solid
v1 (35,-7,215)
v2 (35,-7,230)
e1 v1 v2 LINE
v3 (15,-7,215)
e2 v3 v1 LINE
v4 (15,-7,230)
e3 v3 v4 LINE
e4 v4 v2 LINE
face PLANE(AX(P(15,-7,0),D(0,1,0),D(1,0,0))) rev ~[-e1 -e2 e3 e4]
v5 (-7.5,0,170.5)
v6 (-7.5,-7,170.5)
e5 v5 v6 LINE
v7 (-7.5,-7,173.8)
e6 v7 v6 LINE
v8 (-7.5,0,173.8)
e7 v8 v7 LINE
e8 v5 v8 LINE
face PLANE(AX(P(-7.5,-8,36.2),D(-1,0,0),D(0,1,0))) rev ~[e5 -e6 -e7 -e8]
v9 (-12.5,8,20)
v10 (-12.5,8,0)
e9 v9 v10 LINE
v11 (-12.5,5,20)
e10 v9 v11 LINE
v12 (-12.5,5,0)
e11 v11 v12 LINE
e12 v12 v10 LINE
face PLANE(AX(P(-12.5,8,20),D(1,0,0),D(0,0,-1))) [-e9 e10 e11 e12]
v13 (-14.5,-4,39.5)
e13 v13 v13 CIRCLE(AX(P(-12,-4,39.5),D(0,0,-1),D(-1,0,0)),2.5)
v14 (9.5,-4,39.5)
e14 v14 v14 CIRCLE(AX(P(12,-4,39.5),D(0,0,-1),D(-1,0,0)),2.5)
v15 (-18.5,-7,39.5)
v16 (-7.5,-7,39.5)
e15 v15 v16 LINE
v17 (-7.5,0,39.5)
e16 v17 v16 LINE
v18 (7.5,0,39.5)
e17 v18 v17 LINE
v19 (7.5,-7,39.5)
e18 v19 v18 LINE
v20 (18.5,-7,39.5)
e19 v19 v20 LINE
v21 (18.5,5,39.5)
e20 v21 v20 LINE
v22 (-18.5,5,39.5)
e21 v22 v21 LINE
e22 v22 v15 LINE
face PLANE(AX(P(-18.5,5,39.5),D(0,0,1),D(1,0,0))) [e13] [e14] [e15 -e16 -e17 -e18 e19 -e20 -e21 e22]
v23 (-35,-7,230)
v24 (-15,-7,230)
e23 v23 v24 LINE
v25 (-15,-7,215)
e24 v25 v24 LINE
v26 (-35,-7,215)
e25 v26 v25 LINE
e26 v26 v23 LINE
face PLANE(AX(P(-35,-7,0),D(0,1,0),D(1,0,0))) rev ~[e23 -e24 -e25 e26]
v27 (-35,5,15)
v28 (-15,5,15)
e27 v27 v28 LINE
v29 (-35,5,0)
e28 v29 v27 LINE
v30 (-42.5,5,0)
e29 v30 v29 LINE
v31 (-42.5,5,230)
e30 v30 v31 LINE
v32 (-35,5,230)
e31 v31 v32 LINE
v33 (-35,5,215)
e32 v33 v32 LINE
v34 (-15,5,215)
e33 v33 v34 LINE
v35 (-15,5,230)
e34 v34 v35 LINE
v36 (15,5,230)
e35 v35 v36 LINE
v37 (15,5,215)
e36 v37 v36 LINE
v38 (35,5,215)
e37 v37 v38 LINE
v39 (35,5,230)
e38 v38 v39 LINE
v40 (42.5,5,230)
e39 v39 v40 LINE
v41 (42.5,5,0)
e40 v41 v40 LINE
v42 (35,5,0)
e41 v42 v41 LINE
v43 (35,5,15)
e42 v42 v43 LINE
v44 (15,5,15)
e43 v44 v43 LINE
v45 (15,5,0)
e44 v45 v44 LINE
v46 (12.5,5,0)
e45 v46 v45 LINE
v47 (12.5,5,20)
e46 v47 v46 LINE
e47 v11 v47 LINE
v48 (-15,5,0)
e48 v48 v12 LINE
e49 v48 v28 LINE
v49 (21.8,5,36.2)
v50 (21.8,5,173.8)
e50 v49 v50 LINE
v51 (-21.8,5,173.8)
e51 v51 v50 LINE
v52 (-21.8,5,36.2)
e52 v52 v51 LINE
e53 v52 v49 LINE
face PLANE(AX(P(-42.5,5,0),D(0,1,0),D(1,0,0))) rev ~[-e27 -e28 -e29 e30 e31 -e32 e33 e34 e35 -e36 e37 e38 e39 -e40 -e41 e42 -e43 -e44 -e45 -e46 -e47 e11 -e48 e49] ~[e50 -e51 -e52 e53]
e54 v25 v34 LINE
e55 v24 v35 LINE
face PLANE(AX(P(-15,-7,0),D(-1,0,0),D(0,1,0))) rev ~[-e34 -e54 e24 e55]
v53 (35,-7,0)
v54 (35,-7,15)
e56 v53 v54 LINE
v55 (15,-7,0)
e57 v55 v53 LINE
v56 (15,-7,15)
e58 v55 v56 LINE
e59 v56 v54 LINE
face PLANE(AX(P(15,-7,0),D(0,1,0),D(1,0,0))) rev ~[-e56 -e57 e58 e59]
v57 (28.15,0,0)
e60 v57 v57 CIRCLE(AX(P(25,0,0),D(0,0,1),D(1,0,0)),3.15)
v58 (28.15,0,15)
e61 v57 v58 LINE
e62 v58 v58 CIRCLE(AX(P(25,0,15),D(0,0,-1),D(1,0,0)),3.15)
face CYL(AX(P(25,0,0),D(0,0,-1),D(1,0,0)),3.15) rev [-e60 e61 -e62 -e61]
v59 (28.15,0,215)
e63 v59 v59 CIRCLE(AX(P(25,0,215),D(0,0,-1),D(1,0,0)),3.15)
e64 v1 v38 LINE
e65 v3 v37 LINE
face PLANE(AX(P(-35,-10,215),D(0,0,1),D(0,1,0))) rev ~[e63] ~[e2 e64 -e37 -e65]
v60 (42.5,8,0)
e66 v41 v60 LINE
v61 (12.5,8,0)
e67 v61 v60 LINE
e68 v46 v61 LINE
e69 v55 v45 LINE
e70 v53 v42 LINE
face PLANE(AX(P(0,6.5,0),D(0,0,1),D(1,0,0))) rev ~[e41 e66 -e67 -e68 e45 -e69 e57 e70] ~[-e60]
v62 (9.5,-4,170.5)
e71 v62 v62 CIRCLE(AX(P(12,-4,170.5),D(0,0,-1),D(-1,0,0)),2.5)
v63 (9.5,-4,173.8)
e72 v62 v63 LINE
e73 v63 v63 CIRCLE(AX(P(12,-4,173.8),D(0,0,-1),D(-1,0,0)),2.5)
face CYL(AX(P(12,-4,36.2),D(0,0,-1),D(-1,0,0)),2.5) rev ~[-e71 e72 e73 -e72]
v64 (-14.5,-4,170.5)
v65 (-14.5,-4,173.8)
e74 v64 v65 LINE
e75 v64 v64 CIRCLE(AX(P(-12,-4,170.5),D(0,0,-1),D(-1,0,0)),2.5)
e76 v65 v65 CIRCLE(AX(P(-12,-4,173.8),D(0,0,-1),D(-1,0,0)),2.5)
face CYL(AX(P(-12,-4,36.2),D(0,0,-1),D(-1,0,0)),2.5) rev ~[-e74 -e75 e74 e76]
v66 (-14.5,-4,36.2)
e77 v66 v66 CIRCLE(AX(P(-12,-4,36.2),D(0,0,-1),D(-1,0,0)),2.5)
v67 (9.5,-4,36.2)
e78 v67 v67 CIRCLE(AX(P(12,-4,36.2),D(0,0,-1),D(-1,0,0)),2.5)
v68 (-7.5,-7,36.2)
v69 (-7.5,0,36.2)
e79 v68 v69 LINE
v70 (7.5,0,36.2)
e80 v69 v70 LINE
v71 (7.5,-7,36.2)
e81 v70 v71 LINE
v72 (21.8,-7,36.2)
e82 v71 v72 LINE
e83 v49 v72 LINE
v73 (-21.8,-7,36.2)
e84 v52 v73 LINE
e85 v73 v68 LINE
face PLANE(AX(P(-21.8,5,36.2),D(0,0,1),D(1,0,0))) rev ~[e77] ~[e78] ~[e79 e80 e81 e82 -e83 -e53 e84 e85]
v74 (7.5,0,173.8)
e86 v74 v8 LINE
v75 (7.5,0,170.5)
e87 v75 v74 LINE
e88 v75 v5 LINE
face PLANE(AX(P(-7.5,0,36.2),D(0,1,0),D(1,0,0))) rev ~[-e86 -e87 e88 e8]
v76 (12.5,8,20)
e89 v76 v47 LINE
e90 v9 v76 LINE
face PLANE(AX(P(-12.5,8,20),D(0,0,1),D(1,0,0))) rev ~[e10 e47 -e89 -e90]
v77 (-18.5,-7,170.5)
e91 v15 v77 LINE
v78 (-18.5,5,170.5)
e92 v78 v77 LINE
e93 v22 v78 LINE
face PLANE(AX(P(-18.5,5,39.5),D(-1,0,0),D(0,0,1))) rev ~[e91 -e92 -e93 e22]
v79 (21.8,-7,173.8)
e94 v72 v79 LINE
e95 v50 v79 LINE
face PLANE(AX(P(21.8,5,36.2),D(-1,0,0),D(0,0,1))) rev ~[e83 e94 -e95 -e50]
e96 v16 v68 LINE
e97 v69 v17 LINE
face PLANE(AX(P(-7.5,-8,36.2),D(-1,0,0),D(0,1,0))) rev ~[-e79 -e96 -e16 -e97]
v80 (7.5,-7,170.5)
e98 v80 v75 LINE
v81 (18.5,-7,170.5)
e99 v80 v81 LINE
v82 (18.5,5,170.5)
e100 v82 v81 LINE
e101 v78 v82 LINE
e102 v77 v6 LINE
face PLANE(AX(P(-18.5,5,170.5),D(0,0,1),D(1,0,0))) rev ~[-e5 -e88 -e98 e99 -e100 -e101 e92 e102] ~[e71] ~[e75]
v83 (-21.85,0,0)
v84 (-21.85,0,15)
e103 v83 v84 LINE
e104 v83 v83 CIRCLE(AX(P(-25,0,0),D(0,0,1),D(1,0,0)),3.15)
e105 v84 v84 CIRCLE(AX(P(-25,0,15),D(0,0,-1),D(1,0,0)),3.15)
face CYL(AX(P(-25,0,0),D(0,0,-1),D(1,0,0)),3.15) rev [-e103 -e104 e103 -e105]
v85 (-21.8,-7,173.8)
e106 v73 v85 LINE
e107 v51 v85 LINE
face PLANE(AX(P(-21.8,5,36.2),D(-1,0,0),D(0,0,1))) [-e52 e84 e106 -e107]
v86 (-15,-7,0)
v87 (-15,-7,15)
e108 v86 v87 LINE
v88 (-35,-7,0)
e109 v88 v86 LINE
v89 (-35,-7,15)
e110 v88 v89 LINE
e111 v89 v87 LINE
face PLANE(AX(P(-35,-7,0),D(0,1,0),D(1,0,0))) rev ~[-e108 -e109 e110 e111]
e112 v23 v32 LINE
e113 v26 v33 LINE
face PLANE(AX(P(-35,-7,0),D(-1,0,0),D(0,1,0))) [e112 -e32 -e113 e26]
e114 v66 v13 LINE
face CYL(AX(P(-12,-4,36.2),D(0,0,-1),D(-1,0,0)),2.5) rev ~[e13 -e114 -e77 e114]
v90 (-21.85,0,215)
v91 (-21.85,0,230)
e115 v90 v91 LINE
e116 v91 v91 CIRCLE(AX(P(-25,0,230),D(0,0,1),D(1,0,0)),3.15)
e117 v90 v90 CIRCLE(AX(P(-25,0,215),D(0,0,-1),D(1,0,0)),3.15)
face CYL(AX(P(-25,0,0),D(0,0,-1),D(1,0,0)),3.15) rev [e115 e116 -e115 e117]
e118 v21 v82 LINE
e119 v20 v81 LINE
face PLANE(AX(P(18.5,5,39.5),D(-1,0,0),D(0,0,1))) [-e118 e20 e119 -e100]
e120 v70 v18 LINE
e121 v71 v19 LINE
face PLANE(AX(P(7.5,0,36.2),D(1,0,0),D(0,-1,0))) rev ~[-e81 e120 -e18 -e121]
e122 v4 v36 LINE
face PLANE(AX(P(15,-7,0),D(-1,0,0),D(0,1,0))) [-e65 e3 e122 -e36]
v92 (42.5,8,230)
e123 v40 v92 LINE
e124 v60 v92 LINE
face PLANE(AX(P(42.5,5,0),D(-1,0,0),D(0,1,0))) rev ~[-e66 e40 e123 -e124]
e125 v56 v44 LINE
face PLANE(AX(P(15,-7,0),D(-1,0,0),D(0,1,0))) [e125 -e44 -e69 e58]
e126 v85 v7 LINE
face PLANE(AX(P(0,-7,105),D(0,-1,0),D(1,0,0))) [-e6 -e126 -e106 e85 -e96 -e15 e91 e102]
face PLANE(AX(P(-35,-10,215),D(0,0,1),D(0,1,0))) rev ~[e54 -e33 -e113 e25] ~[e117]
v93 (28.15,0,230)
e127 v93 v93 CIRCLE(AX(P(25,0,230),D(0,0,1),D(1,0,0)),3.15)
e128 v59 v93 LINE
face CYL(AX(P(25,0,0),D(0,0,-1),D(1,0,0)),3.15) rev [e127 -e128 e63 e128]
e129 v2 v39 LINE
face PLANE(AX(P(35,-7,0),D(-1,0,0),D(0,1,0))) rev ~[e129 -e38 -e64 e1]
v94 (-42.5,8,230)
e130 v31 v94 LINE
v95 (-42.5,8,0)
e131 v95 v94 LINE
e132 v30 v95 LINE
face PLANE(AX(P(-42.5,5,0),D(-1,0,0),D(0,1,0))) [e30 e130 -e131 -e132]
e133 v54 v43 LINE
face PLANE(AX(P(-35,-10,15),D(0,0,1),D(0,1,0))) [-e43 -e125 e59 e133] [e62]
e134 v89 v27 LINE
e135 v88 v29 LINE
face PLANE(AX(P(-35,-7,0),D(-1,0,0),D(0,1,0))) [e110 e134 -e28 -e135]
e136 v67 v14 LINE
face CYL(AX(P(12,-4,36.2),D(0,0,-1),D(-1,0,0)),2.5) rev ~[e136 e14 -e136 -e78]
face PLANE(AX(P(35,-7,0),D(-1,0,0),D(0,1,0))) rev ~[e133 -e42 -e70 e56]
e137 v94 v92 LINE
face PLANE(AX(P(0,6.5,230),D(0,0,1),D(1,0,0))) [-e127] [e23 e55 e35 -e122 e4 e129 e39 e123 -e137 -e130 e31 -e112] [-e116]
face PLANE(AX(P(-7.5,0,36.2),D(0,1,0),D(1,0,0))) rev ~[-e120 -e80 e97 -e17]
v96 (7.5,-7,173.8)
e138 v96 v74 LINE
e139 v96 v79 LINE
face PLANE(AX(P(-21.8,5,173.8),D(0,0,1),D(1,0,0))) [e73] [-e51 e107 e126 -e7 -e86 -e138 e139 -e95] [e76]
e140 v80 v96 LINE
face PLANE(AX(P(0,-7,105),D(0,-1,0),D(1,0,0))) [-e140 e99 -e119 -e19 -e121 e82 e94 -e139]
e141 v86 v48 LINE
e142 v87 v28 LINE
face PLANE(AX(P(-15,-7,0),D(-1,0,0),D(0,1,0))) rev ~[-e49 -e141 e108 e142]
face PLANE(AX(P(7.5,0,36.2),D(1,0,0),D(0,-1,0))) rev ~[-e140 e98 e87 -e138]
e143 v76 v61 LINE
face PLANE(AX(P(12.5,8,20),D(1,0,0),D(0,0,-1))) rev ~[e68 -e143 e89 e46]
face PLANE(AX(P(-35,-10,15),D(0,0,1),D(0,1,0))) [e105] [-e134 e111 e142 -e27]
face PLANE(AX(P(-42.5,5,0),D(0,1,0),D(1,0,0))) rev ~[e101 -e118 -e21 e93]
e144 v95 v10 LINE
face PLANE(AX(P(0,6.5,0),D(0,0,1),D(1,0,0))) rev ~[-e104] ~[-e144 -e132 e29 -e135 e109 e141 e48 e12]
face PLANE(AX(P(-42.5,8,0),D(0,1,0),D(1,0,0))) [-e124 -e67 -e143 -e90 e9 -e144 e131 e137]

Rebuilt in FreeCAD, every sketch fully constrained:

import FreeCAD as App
import Part
import Sketcher
from FreeCAD import Vector
Q = App.Units.Quantity


def add_polygon(sketch, points):
    """Adds a closed chain of lines whose ends are joined by coincident constraints."""
    first, n = sketch.GeometryCount, len(points)
    for a, b in zip(points, points[1:] + points[:1]):
        sketch.addGeometry(Part.LineSegment(App.Vector(*a, 0), App.Vector(*b, 0)), False)
    for i in range(n):
        sketch.addConstraint(Sketcher.Constraint("Coincident", first + i, 2, first + (i + 1) % n, 1))

doc = App.newDocument("Part")
body = doc.addObject("PartDesign::Body", "Body")

# Sketch on XY plane
sketch1 = body.newObject("Sketcher::SketchObject", "Sketch")
sketch1.AttachmentSupport = (doc.getObject("XY_Plane"), [""])
sketch1.MapMode = "FlatFace"
add_polygon(sketch1, [(-35, 5), (-35, -7), (-15, -7), (-15, 5), (15, 5), (15, -7), (35, -7), (35, 5), (42.5, 5), (42.5, 8), (-42.5, 8), (-42.5, 5)])  # lines 0-11
sketch1.addGeometry(Part.Circle(Vector(-25, 0, 0), Vector(0, 0, 1), 3.15), False)  # 12
sketch1.addGeometry(Part.Circle(Vector(25, 0, 0), Vector(0, 0, 1), 3.15), False)  # 13
sketch1.addConstraint([
    Sketcher.Constraint("Vertical", 0),
    Sketcher.Constraint("Horizontal", 1),
    Sketcher.Constraint("Vertical", 2),
    Sketcher.Constraint("Horizontal", 3),
    Sketcher.Constraint("Vertical", 4),
    Sketcher.Constraint("Horizontal", 5),
    Sketcher.Constraint("Vertical", 6),
    Sketcher.Constraint("Horizontal", 7),
    Sketcher.Constraint("Vertical", 8),
    Sketcher.Constraint("Horizontal", 9),
    Sketcher.Constraint("Vertical", 10),
    Sketcher.Constraint("Horizontal", 11),
    Sketcher.Constraint("Equal", 12, 13),
    Sketcher.Constraint("Symmetric", 12, 3, 13, 3, -1, 1),
    Sketcher.Constraint("Symmetric", 1, 2, 4, 2, -2),
    Sketcher.Constraint("Symmetric", 7, 2, 10, 2, -2),
    Sketcher.Constraint("PointOnObject", 12, 3, -1),
    Sketcher.Constraint("Horizontal", 3, 2, 6, 2),
    Sketcher.Constraint("Equal", 1, 5),
    Sketcher.Constraint("Diameter", 12, Q("6.3 mm")),
    Sketcher.Constraint("DistanceX", 1, 1, 1, 2, Q("20 mm")),
    Sketcher.Constraint("DistanceX", 3, 1, 3, 2, Q("30 mm")),
    Sketcher.Constraint("DistanceX", 9, 2, 9, 1, Q("85 mm")),
    Sketcher.Constraint("DistanceY", 0, 2, 0, 1, Q("12 mm")),
    Sketcher.Constraint("DistanceY", 8, 1, 8, 2, Q("3 mm")),
    Sketcher.Constraint("DistanceX", 12, 3, -1, 1, Q("25 mm")),
    Sketcher.Constraint("DistanceY", 0, 2, -1, 1, Q("7 mm")),
])
pad1 = body.newObject("PartDesign::Pad", "Pad")
pad1.Profile = sketch1
pad1.Length = 230

# Sketch on YZ plane
sketch2 = body.newObject("Sketcher::SketchObject", "Sketch001")
sketch2.AttachmentSupport = (doc.getObject("YZ_Plane"), [""])
sketch2.MapMode = "FlatFace"
sketch2.AttachmentOffset = App.Placement(Vector(0, 0, -35), App.Rotation())
add_polygon(sketch2, [(5, 15), (-10, 15), (-10, 215), (5, 215)])  # lines 0-3
sketch2.addConstraint([
    Sketcher.Constraint("Horizontal", 0),
    Sketcher.Constraint("Vertical", 1),
    Sketcher.Constraint("Horizontal", 2),
    Sketcher.Constraint("Vertical", 3),
    Sketcher.Constraint("DistanceX", 0, 2, 0, 1, Q("15 mm")),
    Sketcher.Constraint("DistanceY", 1, 1, 1, 2, Q("200 mm")),
    Sketcher.Constraint("DistanceX", 0, 2, -1, 1, Q("10 mm")),
    Sketcher.Constraint("DistanceY", -1, 1, 0, 2, Q("15 mm")),
])
pocket1 = body.newObject("PartDesign::Pocket", "Pocket")
pocket1.Profile = sketch2
pocket1.Length = 210
pocket1.Reversed = True

# Sketch on XZ plane
sketch3 = body.newObject("Sketcher::SketchObject", "Sketch002")
sketch3.AttachmentSupport = (doc.getObject("XZ_Plane"), [""])
sketch3.MapMode = "FlatFace"
sketch3.AttachmentOffset = App.Placement(Vector(0, 0, -5), App.Rotation())
add_polygon(sketch3, [(-21.8, 173.8), (-21.8, 36.2), (21.8, 36.2), (21.8, 173.8)])  # lines 0-3
add_polygon(sketch3, [(18.5, 39.5), (-18.5, 39.5), (-18.5, 170.5), (18.5, 170.5)])  # lines 4-7
sketch3.addConstraint([
    Sketcher.Constraint("Vertical", 0),
    Sketcher.Constraint("Horizontal", 1),
    Sketcher.Constraint("Vertical", 2),
    Sketcher.Constraint("Horizontal", 3),
    Sketcher.Constraint("Horizontal", 4),
    Sketcher.Constraint("Vertical", 5),
    Sketcher.Constraint("Horizontal", 6),
    Sketcher.Constraint("Vertical", 7),
    Sketcher.Constraint("DistanceX", 4, 2, 4, 1, Q("37 mm")),
    Sketcher.Constraint("DistanceY", 5, 1, 5, 2, Q("131 mm")),
    Sketcher.Constraint("DistanceX", 1, 1, 1, 2, Q("43.6 mm")),
    Sketcher.Constraint("DistanceY", 0, 2, 0, 1, Q("137.6 mm")),
    Sketcher.Constraint("DistanceX", 0, 2, -1, 1, Q("21.8 mm")),
    Sketcher.Constraint("DistanceY", -1, 1, 0, 2, Q("36.2 mm")),
    Sketcher.Constraint("DistanceX", 4, 2, -1, 1, Q("18.5 mm")),
    Sketcher.Constraint("DistanceY", -1, 1, 4, 2, Q("39.5 mm")),
])
pad2 = body.newObject("PartDesign::Pad", "Pad001")
pad2.Profile = sketch3
pad2.Length = 12

# Sketch on XY plane
sketch4 = body.newObject("Sketcher::SketchObject", "Sketch003")
sketch4.AttachmentSupport = (doc.getObject("XY_Plane"), [""])
sketch4.MapMode = "FlatFace"
sketch4.AttachmentOffset = App.Placement(Vector(0, 0, 36.2), App.Rotation())
add_polygon(sketch4, [(7.5, 0), (7.5, -8), (-7.5, -8), (-7.5, 0)])  # lines 0-3
sketch4.addConstraint([
    Sketcher.Constraint("Vertical", 0),
    Sketcher.Constraint("Horizontal", 1),
    Sketcher.Constraint("Vertical", 2),
    Sketcher.Constraint("Horizontal", 3),
    Sketcher.Constraint("Symmetric", 2, 2, 3, 2, -1, 1),
    Sketcher.Constraint("DistanceX", 1, 2, 1, 1, Q("15 mm")),
    Sketcher.Constraint("DistanceY", 0, 2, 0, 1, Q("8 mm")),
])
pocket2 = body.newObject("PartDesign::Pocket", "Pocket001")
pocket2.Profile = sketch4
pocket2.Type = "ThroughAll"
pocket2.Reversed = True

# Sketch on XY plane
sketch5 = body.newObject("Sketcher::SketchObject", "Sketch004")
sketch5.AttachmentSupport = (doc.getObject("XY_Plane"), [""])
sketch5.MapMode = "FlatFace"
sketch5.AttachmentOffset = App.Placement(Vector(0, 0, 36.2), App.Rotation())
sketch5.addGeometry([
    Part.Circle(Vector(12, -4, 0), Vector(0, 0, 1), 2.5),
    Part.Circle(Vector(-12, -4, 0), Vector(0, 0, 1), 2.5),
], False)
sketch5.addConstraint([
    Sketcher.Constraint("Equal", 0, 1),
    Sketcher.Constraint("Symmetric", 0, 3, 1, 3, -2),
    Sketcher.Constraint("Diameter", 0, Q("5 mm")),
    Sketcher.Constraint("DistanceX", -1, 1, 0, 3, Q("12 mm")),
    Sketcher.Constraint("DistanceY", 0, 3, -1, 1, Q("4 mm")),
])
pocket3 = body.newObject("PartDesign::Pocket", "Pocket002")
pocket3.Profile = sketch5
pocket3.Length = 150
pocket3.Reversed = True

# Sketch on XZ plane
sketch6 = body.newObject("Sketcher::SketchObject", "Sketch005")
sketch6.AttachmentSupport = (doc.getObject("XZ_Plane"), [""])
sketch6.MapMode = "FlatFace"
sketch6.AttachmentOffset = App.Placement(Vector(0, 0, -8), App.Rotation())
add_polygon(sketch6, [(-12.5, -20), (-12.5, 20), (12.5, 20), (12.5, -20)])  # lines 0-3
sketch6.addConstraint([
    Sketcher.Constraint("Vertical", 0),
    Sketcher.Constraint("Horizontal", 1),
    Sketcher.Constraint("Vertical", 2),
    Sketcher.Constraint("Horizontal", 3),
    Sketcher.Constraint("Symmetric", 0, 2, 2, 2, -1, 1),
    Sketcher.Constraint("DistanceX", 1, 1, 1, 2, Q("25 mm")),
    Sketcher.Constraint("DistanceY", 0, 1, 0, 2, Q("40 mm")),
])
pocket4 = body.newObject("PartDesign::Pocket", "Pocket003")
pocket4.Profile = sketch6
pocket4.Length = 150
pocket4.Reversed = True

doc.recompute()
